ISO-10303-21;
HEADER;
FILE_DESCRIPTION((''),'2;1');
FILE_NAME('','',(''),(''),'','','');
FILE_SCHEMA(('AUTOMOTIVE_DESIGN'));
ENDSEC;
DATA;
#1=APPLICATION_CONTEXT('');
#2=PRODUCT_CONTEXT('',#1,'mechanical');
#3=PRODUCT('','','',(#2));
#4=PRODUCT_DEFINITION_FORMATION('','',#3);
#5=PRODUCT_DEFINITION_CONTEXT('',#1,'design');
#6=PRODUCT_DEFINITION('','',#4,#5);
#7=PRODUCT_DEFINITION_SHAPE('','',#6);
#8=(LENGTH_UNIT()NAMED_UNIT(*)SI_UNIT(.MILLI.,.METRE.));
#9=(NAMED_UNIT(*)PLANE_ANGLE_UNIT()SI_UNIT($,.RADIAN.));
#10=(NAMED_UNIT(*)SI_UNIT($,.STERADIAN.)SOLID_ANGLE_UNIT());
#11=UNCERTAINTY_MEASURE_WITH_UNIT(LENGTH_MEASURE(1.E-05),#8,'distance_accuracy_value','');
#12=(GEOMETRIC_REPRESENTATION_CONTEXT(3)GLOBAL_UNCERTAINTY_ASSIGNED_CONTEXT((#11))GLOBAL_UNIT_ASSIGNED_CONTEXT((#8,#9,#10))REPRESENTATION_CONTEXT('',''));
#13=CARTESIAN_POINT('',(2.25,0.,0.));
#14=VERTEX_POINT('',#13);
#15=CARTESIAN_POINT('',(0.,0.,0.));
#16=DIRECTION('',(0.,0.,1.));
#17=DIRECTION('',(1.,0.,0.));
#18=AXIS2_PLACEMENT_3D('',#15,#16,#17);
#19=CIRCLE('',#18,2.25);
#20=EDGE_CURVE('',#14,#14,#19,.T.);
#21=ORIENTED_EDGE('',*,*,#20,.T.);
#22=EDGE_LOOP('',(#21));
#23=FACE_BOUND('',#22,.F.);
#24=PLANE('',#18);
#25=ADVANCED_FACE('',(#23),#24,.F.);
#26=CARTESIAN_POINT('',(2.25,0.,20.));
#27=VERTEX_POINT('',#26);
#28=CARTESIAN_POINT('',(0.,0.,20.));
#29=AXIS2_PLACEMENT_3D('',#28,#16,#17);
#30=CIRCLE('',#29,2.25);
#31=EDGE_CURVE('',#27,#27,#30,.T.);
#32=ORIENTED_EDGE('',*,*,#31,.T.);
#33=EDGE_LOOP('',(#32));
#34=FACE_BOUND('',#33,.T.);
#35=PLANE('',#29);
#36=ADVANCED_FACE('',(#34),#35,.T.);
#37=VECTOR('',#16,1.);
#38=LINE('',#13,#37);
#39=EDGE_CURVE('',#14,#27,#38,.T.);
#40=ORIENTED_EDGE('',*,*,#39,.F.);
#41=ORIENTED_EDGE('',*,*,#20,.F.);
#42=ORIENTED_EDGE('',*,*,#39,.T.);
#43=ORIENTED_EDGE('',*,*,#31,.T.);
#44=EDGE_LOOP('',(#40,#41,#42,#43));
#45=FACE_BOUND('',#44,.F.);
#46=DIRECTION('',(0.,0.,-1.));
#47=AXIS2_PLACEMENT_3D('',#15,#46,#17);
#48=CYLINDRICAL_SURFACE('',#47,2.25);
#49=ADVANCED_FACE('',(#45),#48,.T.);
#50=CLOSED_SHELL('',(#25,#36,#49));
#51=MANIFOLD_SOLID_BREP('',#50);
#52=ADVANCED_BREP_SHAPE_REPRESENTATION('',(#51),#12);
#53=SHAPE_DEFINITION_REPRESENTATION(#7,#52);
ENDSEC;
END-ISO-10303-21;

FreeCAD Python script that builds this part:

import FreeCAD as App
import Part
import Sketcher

doc = App.newDocument("Part")
params = doc.addObject("Spreadsheet::Sheet", "Params")
for row, (alias, value) in enumerate([
    ("sketch1_diameter", "4.5 mm"),
    ("pad1_length", "20 mm"),
], start=1):
    params.set(f"A{row}", alias)
    params.set(f"B{row}", "=" + value)
    params.setAlias(f"B{row}", alias)

body = doc.addObject("PartDesign::Body", "Body")

# Sketch on XY plane
sketch1 = doc.addObject("Sketcher::SketchObject", "Sketch")
body.addObject(sketch1)
sketch1.AttachmentSupport = (doc.XY_Plane, [""])
sketch1.MapMode = "FlatFace"
sketch1.addGeometry(Part.Circle(App.Vector(0, 0, 0), App.Vector(0, 0, 1), 2.2), False)
sketch1.addConstraint([
    Sketcher.Constraint("Coincident", 0, 3, -1, 1),
    Sketcher.Constraint("Diameter", 0, 4.5),
])
sketch1.setExpression("Constraints[1]", "Params.sketch1_diameter")
pad1 = doc.addObject("PartDesign::Pad", "Pad")
body.addObject(pad1)
pad1.Profile = sketch1
pad1.setExpression("Length", "Params.pad1_length")

doc.recompute()
